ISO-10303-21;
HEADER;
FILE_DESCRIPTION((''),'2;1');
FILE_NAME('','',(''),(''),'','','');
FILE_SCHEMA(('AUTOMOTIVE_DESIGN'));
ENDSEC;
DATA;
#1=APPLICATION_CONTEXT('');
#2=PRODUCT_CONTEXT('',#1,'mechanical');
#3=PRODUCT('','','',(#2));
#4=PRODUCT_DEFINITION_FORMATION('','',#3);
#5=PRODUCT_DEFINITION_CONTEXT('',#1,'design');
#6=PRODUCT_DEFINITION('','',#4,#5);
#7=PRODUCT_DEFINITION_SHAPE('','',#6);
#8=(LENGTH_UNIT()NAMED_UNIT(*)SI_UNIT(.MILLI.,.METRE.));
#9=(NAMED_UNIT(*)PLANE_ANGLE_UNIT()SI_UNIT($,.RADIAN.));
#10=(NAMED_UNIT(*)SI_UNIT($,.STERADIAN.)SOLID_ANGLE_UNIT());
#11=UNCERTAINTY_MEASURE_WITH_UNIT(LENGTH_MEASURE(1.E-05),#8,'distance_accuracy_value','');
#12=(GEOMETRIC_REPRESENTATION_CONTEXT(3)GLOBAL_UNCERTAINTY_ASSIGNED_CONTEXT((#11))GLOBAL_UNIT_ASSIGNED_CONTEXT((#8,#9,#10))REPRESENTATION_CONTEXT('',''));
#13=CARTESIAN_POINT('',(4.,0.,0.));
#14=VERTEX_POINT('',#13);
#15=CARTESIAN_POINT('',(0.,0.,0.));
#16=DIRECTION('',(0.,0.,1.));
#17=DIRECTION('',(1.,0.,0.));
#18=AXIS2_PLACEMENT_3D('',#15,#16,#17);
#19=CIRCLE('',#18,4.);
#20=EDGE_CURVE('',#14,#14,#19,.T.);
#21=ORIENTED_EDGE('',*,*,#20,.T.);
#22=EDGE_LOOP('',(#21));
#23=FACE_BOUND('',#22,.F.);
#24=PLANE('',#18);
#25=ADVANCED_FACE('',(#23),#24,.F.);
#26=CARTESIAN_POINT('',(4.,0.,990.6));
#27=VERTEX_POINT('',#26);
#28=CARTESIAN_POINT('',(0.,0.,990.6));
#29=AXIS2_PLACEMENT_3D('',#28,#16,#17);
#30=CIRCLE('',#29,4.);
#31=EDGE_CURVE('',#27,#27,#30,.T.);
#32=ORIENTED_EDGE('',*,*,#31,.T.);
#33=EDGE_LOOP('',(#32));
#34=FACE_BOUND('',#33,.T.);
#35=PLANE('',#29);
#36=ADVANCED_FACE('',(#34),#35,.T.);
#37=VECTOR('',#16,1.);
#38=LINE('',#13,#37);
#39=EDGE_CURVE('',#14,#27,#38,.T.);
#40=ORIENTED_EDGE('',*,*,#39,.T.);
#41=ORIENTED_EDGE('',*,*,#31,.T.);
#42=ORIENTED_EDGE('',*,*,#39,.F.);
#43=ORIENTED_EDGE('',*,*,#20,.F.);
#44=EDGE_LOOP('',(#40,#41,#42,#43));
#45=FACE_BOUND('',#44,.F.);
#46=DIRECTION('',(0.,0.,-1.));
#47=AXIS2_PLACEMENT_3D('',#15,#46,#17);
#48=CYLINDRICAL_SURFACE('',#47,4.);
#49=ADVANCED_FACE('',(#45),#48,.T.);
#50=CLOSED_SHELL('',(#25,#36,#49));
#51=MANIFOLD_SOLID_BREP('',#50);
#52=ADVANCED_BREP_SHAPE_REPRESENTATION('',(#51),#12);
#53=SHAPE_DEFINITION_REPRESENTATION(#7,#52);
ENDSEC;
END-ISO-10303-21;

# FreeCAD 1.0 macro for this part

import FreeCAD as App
import Part
import Sketcher
from FreeCAD import Vector
Q = App.Units.Quantity

doc = App.newDocument("Part")
body = doc.addObject("PartDesign::Body", "Body")

sketch1 = body.newObject("Sketcher::SketchObject", "Sketch")
sketch1.AttachmentSupport = (doc.getObject("XY_Plane"), [""])
sketch1.MapMode = "FlatFace"
sketch1.addGeometry(Part.Circle(Vector(0, 0, 0), Vector(0, 0, 1), 4), False)
sketch1.addConstraint([
    Sketcher.Constraint("Coincident", 0, 3, -1, 1),
    Sketcher.Constraint("Diameter", 0, Q("8 mm")),
])
pad1 = body.newObject("PartDesign::Pad", "Pad")
pad1.Profile = sketch1
pad1.Length = 990.6

doc.recompute()
